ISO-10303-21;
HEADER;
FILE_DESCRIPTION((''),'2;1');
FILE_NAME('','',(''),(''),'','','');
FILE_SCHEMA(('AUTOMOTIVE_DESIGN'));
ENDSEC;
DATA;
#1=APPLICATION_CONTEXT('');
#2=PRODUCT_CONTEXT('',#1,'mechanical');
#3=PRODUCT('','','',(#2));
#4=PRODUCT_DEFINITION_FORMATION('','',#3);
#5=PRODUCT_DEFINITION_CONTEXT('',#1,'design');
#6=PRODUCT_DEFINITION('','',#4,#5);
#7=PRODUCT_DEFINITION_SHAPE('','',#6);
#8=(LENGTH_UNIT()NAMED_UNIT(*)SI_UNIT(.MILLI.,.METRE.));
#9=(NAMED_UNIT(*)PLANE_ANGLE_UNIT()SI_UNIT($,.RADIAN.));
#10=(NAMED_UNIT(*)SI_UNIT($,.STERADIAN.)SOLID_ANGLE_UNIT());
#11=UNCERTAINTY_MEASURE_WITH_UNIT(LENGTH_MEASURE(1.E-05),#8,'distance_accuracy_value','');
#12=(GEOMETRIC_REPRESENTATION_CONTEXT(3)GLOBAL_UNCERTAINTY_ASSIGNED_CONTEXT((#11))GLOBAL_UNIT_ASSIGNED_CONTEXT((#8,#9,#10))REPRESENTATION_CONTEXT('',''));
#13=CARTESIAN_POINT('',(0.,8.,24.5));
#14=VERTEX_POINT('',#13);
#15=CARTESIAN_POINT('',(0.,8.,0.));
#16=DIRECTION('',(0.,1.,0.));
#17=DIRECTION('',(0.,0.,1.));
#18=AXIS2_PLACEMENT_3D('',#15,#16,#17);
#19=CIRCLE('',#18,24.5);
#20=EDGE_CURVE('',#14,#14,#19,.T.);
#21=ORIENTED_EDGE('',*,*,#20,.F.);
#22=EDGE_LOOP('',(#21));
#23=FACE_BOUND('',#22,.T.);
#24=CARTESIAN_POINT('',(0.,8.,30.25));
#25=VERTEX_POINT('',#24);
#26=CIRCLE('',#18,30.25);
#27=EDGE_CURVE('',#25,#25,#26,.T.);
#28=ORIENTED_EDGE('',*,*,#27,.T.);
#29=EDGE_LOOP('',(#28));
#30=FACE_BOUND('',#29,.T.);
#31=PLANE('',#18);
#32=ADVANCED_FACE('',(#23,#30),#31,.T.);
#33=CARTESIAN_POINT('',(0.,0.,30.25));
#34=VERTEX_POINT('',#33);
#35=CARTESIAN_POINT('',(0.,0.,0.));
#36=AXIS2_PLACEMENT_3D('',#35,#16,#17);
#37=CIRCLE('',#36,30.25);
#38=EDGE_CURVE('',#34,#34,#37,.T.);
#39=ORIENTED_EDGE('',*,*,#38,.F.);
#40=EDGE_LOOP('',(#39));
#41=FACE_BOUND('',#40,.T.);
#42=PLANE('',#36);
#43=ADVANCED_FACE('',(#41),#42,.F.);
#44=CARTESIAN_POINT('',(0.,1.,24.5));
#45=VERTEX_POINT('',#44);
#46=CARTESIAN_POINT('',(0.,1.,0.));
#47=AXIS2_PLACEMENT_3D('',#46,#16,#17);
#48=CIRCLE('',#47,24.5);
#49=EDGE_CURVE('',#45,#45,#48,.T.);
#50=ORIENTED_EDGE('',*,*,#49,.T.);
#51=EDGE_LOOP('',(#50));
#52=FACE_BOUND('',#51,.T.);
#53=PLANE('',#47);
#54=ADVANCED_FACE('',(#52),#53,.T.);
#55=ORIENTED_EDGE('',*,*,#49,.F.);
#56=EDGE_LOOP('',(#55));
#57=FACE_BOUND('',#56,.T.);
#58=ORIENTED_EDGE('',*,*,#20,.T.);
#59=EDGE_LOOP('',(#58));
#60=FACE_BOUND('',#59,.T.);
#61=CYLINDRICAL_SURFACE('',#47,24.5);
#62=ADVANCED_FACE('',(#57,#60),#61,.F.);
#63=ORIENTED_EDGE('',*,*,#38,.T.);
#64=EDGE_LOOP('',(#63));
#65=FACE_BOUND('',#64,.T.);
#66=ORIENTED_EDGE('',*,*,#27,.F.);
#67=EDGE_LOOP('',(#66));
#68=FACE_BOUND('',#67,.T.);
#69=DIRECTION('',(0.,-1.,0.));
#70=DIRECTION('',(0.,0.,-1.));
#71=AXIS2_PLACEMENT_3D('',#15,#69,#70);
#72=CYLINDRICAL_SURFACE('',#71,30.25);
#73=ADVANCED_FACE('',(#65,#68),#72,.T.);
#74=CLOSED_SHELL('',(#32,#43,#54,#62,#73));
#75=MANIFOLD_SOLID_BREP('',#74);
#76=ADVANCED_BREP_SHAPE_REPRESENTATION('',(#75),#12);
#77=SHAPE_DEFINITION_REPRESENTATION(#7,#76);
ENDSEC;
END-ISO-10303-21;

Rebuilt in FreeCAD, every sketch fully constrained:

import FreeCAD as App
import Part
import Sketcher
from FreeCAD import Vector

doc = App.newDocument("Part")
params = doc.addObject("Spreadsheet::Sheet", "Params")
for row, (alias, value) in enumerate([
    ("sketch1_diameter", "60.5 mm"),
    ("pad1_length", "8 mm"),
    ("sketch2_diameter", "49 mm"),
    ("pocket1_length", "7 mm"),
], start=1):
    params.set(f"A{row}", alias)
    params.set(f"B{row}", "=" + value)
    params.setAlias(f"B{row}", alias)

body = doc.addObject("PartDesign::Body", "Body")

# Sketch on XZ plane
sketch1 = body.newObject("Sketcher::SketchObject", "Sketch")
sketch1.AttachmentSupport = (doc.getObject("XZ_Plane"), [""])
sketch1.MapMode = "FlatFace"
sketch1.addGeometry(Part.Circle(Vector(0, 0, 0), Vector(0, 0, 1), 30), False)
sketch1.addConstraint(Sketcher.Constraint("Coincident", 0, 3, -1, 1))
sketch1.addConstraint(Sketcher.Constraint("Diameter", 0, 60.5))
sketch1.setExpression("Constraints[1]", "Params.sketch1_diameter")
pad1 = body.newObject("PartDesign::Pad", "Pad")
pad1.Profile = sketch1
pad1.setExpression("Length", "Params.pad1_length")
pad1.Reversed = True

# Sketch on XZ plane
sketch2 = body.newObject("Sketcher::SketchObject", "Sketch001")
sketch2.AttachmentSupport = (doc.getObject("XZ_Plane"), [""])
sketch2.MapMode = "FlatFace"
sketch2.AttachmentOffset = App.Placement(Vector(0, 0, -8), App.Rotation())
sketch2.addGeometry(Part.Circle(Vector(0, 0, 0), Vector(0, 0, 1), 24), False)
sketch2.addConstraint(Sketcher.Constraint("Coincident", 0, 3, -1, 1))
sketch2.addConstraint(Sketcher.Constraint("Diameter", 0, 49.0))
sketch2.setExpression("Constraints[1]", "Params.sketch2_diameter")
pocket1 = body.newObject("PartDesign::Pocket", "Pocket")
pocket1.Profile = sketch2
pocket1.setExpression("Length", "Params.pocket1_length")
pocket1.Reversed = True

doc.recompute()
